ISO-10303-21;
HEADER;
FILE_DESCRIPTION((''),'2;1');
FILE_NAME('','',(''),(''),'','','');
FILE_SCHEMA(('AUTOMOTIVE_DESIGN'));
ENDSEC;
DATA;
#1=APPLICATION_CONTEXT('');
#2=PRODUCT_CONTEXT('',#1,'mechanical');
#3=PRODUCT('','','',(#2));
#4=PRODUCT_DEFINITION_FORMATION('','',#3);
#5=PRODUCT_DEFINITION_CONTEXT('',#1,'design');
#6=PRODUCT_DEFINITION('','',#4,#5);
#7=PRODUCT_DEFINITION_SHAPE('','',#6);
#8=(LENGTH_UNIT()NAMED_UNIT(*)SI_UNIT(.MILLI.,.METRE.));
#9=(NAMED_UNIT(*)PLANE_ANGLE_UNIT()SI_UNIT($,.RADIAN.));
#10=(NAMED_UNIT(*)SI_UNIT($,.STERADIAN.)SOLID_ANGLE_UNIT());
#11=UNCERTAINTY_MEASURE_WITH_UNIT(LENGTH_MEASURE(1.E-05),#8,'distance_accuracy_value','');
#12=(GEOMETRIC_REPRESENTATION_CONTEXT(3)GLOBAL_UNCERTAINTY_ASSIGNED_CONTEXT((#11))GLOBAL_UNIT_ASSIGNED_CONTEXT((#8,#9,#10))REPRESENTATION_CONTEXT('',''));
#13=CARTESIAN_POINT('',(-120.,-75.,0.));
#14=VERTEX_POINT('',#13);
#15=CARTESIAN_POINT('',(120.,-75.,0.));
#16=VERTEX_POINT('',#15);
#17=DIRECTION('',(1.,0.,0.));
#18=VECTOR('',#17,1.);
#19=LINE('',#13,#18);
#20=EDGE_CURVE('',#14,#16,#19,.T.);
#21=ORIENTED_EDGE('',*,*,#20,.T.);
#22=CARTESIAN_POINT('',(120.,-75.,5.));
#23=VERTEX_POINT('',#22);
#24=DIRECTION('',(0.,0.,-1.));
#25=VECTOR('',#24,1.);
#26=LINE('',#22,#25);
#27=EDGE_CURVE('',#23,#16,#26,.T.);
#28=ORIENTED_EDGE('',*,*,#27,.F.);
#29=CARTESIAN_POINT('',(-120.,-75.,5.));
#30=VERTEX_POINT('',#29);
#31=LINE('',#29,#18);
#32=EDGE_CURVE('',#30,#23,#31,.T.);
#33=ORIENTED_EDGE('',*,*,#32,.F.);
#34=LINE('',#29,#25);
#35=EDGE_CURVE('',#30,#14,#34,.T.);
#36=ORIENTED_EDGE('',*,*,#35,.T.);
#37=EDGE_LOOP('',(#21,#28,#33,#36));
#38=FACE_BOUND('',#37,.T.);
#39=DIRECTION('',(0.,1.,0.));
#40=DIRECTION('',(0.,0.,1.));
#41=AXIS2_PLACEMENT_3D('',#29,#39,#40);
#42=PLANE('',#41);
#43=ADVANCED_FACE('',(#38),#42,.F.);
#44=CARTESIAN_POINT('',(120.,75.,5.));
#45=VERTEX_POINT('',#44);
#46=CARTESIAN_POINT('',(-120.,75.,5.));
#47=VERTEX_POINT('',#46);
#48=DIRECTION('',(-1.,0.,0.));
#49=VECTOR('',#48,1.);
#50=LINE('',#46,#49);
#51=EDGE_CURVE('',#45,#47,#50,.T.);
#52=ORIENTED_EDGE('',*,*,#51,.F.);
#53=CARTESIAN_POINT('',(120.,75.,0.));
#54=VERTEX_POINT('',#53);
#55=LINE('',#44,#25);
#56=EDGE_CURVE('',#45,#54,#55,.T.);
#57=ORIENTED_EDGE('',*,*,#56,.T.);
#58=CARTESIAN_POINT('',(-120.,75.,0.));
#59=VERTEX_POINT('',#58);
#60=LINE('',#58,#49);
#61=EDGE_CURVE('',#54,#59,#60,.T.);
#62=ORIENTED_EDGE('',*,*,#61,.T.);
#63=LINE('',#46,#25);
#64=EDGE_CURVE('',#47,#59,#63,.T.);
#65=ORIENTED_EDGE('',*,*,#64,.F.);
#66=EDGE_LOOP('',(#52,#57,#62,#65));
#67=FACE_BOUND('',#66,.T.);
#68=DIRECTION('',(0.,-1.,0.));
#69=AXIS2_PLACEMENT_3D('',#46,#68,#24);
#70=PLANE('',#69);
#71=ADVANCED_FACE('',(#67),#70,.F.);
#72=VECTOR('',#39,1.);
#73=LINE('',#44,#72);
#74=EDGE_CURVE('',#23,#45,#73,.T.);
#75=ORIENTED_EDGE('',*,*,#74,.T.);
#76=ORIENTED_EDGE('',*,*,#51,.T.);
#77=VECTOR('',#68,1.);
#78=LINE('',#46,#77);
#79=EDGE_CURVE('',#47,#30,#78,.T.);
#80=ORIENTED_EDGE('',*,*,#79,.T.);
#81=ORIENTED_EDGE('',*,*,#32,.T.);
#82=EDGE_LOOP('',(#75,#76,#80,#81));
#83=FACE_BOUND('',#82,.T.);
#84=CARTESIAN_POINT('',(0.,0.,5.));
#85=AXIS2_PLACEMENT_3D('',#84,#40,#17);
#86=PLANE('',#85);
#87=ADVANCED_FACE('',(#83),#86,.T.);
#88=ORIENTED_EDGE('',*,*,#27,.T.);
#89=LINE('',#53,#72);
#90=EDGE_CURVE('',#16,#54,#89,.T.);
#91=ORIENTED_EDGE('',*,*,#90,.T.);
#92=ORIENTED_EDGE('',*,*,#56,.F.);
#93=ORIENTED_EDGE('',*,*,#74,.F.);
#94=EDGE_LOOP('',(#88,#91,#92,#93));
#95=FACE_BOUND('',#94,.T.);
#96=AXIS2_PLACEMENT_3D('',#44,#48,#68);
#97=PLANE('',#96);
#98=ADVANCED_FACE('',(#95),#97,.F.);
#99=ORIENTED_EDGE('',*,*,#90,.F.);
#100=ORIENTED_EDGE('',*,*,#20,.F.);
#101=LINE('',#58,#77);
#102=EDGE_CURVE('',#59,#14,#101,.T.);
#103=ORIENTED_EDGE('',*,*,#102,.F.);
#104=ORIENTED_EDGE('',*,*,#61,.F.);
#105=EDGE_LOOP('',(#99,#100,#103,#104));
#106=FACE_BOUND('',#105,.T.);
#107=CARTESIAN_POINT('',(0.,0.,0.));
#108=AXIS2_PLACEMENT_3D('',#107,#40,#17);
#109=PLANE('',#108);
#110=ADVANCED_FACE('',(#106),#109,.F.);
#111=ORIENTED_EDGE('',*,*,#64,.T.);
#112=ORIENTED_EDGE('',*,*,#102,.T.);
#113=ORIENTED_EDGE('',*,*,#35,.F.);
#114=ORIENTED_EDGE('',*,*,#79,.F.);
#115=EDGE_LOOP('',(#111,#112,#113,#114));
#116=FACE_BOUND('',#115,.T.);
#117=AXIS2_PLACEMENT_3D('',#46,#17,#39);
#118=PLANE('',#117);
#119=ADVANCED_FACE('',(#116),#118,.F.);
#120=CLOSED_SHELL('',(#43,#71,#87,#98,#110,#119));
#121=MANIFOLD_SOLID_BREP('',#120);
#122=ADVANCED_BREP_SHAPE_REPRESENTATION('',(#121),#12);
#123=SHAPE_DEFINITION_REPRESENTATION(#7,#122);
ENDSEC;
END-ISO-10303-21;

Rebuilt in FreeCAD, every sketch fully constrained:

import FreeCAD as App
import Part
import Sketcher
from FreeCAD import Vector

doc = App.newDocument("Part")
params = doc.addObject("Spreadsheet::Sheet", "Params")
for row, (alias, value) in enumerate([
    ("sketch1_width", "240 mm"),
    ("sketch1_height", "150 mm"),
    ("pad1_length", "5 mm"),
], start=1):
    params.set(f"A{row}", alias)
    params.set(f"B{row}", "=" + value)
    params.setAlias(f"B{row}", alias)

body = doc.addObject("PartDesign::Body", "Body")

sketch1 = body.newObject("Sketcher::SketchObject", "Sketch")
sketch1.AttachmentSupport = (doc.getObject("XY_Plane"), [""])
sketch1.MapMode = "FlatFace"
sketch1.addGeometry(Part.LineSegment(Vector(-120, 75, 0), Vector(-120, -75, 0)), False)
sketch1.addGeometry(Part.LineSegment(Vector(-120, -75, 0), Vector(120, -75, 0)), False)
sketch1.addGeometry(Part.LineSegment(Vector(120, -75, 0), Vector(120, 75, 0)), False)
sketch1.addGeometry(Part.LineSegment(Vector(120, 75, 0), Vector(-120, 75, 0)), False)
sketch1.addConstraint(Sketcher.Constraint("Coincident", 0, 2, 1, 1))
sketch1.addConstraint(Sketcher.Constraint("Coincident", 1, 2, 2, 1))
sketch1.addConstraint(Sketcher.Constraint("Coincident", 2, 2, 3, 1))
sketch1.addConstraint(Sketcher.Constraint("Coincident", 3, 2, 0, 1))
sketch1.addConstraint(Sketcher.Constraint("Vertical", 0))
sketch1.addConstraint(Sketcher.Constraint("Horizontal", 1))
sketch1.addConstraint(Sketcher.Constraint("Vertical", 2))
sketch1.addConstraint(Sketcher.Constraint("Horizontal", 3))
sketch1.addConstraint(Sketcher.Constraint("Symmetric", 0, 2, 2, 2, -1, 1))
sketch1.addConstraint(Sketcher.Constraint("DistanceX", 1, 1, 1, 2, 240.0))
sketch1.addConstraint(Sketcher.Constraint("DistanceY", 0, 2, 0, 1, 150.0))
sketch1.setExpression("Constraints[9]", "Params.sketch1_width")
sketch1.setExpression("Constraints[10]", "Params.sketch1_height")
pad1 = body.newObject("PartDesign::Pad", "Pad")
pad1.Profile = sketch1
pad1.setExpression("Length", "Params.pad1_length")

doc.recompute()
